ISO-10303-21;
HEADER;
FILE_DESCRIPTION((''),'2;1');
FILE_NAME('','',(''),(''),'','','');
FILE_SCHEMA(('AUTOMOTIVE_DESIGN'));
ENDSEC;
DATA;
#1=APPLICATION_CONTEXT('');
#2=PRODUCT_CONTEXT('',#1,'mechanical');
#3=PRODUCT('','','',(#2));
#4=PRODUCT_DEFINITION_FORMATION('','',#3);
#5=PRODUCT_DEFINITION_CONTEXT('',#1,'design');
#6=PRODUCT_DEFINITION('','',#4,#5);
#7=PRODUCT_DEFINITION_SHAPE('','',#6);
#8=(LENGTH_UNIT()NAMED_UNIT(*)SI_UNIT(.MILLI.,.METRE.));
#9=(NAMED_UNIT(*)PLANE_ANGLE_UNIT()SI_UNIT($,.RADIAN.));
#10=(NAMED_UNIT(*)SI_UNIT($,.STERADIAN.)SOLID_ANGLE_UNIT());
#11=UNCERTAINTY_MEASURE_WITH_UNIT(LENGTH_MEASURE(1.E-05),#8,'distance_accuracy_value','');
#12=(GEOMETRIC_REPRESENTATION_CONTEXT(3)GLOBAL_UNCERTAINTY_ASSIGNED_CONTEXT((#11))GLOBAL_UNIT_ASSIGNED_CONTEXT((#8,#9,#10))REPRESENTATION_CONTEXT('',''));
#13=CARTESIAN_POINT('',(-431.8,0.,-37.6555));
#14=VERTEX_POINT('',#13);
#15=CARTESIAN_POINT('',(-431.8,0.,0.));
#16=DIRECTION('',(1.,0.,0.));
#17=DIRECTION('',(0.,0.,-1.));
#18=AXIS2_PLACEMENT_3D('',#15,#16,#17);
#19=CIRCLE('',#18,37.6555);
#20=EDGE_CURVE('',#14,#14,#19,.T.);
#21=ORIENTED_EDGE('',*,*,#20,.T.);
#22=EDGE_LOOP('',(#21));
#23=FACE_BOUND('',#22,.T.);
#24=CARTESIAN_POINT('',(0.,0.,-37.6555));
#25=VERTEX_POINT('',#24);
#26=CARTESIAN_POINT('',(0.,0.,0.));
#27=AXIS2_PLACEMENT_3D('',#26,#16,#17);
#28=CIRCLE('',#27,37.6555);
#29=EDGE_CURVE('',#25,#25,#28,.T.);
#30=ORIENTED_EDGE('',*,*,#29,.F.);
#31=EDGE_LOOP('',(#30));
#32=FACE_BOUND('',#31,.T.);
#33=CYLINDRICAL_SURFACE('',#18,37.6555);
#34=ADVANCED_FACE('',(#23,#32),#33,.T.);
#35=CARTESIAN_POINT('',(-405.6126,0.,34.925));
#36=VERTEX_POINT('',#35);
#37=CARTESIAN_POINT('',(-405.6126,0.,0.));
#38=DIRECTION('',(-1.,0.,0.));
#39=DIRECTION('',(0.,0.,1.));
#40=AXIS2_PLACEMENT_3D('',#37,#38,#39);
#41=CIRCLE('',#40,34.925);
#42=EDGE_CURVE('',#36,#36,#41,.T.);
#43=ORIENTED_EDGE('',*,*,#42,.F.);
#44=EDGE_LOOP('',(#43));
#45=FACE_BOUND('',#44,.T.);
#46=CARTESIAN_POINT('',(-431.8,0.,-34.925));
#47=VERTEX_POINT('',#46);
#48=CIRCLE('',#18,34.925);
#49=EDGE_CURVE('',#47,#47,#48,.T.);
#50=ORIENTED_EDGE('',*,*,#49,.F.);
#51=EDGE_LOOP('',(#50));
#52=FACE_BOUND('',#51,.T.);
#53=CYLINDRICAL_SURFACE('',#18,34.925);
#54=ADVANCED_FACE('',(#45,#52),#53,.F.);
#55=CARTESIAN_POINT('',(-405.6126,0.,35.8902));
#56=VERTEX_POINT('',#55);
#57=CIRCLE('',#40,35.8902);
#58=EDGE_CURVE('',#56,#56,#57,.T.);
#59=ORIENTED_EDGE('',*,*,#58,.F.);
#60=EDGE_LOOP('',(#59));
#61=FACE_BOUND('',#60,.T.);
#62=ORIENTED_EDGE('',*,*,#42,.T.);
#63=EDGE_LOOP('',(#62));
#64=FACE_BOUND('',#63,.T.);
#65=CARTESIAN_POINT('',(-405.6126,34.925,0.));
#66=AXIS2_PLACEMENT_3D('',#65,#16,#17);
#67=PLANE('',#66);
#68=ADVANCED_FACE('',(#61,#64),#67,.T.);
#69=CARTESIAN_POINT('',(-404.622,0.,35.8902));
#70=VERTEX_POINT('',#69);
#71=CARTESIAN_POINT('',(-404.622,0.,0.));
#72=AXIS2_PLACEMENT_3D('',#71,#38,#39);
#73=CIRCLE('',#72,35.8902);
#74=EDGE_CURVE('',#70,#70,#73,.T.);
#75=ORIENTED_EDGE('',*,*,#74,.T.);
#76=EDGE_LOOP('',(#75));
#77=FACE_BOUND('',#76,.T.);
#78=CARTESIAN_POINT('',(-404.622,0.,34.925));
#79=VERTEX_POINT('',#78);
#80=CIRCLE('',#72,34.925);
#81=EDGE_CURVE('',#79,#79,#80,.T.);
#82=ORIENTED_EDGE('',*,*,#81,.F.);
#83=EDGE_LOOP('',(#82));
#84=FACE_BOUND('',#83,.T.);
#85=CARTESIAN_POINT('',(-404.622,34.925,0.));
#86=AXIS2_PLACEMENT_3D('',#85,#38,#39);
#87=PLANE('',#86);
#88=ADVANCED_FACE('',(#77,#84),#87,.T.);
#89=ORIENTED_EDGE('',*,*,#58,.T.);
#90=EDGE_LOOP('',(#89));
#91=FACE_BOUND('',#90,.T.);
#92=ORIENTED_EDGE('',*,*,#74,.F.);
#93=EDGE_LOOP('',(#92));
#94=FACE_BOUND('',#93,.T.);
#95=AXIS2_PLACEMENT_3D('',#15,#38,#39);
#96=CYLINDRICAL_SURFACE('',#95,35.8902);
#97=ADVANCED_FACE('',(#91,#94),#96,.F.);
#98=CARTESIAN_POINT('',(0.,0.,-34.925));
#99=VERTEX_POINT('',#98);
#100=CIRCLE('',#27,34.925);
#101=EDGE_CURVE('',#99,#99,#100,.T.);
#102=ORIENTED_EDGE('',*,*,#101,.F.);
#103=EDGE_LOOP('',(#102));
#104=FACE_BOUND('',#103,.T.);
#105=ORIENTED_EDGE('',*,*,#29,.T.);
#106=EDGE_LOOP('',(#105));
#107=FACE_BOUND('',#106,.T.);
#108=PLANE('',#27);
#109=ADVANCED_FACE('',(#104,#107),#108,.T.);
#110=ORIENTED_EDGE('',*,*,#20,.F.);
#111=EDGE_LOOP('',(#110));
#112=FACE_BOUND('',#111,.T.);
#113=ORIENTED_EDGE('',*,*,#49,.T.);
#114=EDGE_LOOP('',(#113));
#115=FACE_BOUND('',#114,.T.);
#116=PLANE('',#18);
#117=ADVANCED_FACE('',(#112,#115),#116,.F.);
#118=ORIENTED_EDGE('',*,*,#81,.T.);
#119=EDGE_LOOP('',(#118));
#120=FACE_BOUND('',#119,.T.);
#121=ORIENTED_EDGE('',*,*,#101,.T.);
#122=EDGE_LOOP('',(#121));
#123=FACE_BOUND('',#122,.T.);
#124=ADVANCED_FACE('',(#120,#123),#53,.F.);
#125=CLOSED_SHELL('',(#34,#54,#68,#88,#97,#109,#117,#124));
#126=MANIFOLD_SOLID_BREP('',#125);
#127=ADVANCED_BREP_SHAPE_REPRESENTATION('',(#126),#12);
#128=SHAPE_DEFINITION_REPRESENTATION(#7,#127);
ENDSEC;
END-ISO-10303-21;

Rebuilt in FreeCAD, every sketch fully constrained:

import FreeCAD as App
import Part
import Sketcher

V = App.Vector
Q = App.Units.Quantity

doc = App.newDocument("Part")
body = doc.addObject("PartDesign::Body", "Body")

# Sketch on YZ plane
sketch1 = body.newObject("Sketcher::SketchObject", "Sketch")
sketch1.AttachmentSupport = (doc.getObject("YZ_Plane"), [""])
sketch1.MapMode = "FlatFace"
sketch1.addGeometry([
    Part.Circle(V(0, 0, 0), V(0, 0, 1), 38),
    Part.Circle(V(0, 0, 0), V(0, 0, 1), 35),
], False)
sketch1.addConstraint([
    Sketcher.Constraint("Coincident", 0, 3, -1, 1),
    Sketcher.Constraint("Coincident", 1, 3, -1, 1),
    Sketcher.Constraint("Diameter", 1, Q("2.75 in")),
    Sketcher.Constraint("Diameter", 0, Q("2.965 in")),
])
pad1 = body.newObject("PartDesign::Pad", "Pad")
pad1.Profile = sketch1
pad1.Length = Q("17 in")
pad1.Reversed = True

# Sketch on XY plane
sketch2 = body.newObject("Sketcher::SketchObject", "Sketch001")
sketch2.AttachmentSupport = (doc.getObject("XY_Plane"), [""])
sketch2.MapMode = "FlatFace"
sketch2.addGeometry([
    Part.LineSegment(V(-405.6, 35.9, 0), V(-405.6, 34.9, 0)),
    Part.LineSegment(V(-405.6, 34.9, 0), V(-404.6, 34.9, 0)),
    Part.LineSegment(V(-404.6, 34.9, 0), V(-404.6, 35.9, 0)),
    Part.LineSegment(V(-404.6, 35.9, 0), V(-405.6, 35.9, 0)),
], False)
sketch2.addConstraint([
    Sketcher.Constraint("Coincident", 0, 2, 1, 1),
    Sketcher.Constraint("Coincident", 1, 2, 2, 1),
    Sketcher.Constraint("Coincident", 2, 2, 3, 1),
    Sketcher.Constraint("Coincident", 3, 2, 0, 1),
    Sketcher.Constraint("Vertical", 0),
    Sketcher.Constraint("Horizontal", 1),
    Sketcher.Constraint("Vertical", 2),
    Sketcher.Constraint("Horizontal", 3),
    Sketcher.Constraint("DistanceX", 1, 1, 1, 2, Q("0.039 in")),
    Sketcher.Constraint("DistanceY", 0, 2, 0, 1, Q("0.038 in")),
    Sketcher.Constraint("DistanceX", 1, 2, -1, 1, Q("15.93 in")),
    Sketcher.Constraint("DistanceY", -1, 1, 0, 2, Q("1.375 in")),
])
groove = body.newObject("PartDesign::Groove", "Groove")
groove.Profile = sketch2
groove.ReferenceAxis = (sketch2, ["H_Axis"])
groove.Angle = 360

doc.recompute()
